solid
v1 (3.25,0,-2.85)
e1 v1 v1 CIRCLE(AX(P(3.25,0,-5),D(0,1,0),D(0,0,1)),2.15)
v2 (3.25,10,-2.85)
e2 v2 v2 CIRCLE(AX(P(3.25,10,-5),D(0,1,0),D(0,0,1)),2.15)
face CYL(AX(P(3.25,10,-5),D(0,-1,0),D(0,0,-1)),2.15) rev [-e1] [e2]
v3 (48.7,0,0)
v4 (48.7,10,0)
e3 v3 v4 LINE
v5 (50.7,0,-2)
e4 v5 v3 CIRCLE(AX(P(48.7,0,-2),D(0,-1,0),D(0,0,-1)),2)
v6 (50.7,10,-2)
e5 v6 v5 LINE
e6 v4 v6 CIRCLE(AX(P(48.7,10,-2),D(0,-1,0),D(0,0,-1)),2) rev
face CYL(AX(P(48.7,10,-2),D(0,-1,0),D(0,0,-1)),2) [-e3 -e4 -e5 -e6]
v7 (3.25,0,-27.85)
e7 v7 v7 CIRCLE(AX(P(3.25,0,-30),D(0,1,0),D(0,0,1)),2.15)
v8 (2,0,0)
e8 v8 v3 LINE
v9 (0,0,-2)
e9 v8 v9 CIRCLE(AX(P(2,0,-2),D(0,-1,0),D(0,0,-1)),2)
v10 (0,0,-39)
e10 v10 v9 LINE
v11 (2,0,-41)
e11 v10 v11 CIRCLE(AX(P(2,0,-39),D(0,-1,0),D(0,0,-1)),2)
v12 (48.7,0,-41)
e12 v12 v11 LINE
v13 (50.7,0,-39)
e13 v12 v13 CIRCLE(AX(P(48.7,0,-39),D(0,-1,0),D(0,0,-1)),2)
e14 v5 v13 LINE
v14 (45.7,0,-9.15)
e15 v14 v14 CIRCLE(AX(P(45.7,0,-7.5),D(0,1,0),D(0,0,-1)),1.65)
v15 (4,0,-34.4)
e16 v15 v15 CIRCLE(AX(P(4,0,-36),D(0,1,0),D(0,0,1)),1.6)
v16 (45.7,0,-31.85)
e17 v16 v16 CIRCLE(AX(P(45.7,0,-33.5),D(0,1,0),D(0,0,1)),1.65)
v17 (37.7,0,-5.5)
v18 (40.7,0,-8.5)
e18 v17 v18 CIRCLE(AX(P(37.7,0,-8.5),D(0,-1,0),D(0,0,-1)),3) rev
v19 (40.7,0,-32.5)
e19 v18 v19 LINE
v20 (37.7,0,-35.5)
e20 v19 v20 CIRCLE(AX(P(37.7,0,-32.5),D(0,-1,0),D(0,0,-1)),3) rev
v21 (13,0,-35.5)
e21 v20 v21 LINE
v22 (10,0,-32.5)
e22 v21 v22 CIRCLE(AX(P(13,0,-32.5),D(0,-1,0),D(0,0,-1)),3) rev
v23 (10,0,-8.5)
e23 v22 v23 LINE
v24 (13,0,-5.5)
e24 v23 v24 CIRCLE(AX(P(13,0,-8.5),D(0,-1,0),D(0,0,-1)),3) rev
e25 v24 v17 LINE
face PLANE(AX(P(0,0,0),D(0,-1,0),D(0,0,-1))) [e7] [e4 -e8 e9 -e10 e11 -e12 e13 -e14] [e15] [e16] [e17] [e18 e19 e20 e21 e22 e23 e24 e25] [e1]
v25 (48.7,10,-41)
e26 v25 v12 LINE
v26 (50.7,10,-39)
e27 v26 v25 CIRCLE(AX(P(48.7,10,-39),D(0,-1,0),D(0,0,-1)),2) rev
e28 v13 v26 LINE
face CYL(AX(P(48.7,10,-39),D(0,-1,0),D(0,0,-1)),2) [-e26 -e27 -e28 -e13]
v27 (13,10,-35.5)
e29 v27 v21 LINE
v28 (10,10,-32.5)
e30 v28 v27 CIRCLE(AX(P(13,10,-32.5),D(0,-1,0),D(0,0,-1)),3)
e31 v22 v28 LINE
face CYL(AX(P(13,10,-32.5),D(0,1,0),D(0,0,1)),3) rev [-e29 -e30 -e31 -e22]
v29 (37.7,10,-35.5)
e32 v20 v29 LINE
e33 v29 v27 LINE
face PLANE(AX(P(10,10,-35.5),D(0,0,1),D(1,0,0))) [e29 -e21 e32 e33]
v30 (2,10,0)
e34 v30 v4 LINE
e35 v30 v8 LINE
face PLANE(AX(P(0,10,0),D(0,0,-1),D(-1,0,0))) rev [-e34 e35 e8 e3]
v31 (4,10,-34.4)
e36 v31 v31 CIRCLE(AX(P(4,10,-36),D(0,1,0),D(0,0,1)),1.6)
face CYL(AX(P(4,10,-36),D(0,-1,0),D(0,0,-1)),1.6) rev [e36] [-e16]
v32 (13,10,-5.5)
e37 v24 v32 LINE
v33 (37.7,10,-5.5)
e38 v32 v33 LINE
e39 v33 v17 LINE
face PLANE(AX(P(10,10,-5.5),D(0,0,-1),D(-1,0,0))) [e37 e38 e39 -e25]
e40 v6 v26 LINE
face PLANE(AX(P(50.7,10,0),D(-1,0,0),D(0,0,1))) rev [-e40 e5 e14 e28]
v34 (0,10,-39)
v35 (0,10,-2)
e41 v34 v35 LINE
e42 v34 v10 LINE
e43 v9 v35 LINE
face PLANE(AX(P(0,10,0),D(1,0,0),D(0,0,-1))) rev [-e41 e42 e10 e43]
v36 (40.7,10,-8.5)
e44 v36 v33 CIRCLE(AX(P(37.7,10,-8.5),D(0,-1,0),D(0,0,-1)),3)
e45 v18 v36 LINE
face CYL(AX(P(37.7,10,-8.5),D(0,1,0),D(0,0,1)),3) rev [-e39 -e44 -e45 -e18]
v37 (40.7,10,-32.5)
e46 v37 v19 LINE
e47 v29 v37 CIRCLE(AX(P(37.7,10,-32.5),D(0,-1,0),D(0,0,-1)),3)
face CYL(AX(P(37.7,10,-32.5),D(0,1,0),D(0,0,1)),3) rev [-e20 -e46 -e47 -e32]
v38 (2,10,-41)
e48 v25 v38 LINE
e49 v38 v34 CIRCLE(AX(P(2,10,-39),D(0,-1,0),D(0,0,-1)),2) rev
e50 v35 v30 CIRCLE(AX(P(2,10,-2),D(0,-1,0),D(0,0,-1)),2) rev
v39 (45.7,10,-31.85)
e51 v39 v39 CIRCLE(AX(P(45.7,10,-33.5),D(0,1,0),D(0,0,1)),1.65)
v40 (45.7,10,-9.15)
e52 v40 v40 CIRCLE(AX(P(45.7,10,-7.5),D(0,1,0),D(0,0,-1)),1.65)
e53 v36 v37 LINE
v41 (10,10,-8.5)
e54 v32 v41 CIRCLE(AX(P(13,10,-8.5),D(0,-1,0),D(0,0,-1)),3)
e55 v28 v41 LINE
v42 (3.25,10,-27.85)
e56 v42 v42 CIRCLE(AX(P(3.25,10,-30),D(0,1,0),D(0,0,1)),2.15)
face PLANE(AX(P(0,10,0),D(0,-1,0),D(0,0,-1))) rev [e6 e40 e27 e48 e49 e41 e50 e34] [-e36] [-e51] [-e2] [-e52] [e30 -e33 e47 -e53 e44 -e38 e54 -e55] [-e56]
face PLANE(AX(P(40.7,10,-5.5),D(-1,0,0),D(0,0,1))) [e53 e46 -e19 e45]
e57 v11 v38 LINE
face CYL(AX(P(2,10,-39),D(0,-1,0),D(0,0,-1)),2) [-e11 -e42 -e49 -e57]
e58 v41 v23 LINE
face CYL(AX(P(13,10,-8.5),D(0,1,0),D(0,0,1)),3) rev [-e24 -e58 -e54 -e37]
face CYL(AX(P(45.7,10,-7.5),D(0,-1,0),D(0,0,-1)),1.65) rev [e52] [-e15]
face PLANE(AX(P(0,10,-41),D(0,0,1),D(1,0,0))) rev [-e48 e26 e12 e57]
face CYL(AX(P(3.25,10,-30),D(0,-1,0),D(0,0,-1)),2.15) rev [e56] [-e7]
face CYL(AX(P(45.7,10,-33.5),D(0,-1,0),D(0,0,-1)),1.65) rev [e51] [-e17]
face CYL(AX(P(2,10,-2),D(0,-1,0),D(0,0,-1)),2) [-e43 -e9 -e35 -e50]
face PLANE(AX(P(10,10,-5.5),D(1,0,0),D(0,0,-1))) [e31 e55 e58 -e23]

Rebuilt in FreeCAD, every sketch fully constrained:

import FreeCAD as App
import Part
import Sketcher

V = App.Vector
Q = App.Units.Quantity


def edges_at(feature, points):
    """Names of the edges that pass closest to the given points."""
    edges = feature.Shape.Edges
    near = lambda p: min(range(len(edges)), key=lambda i: edges[i].distToShape(Part.Vertex(*p))[0])
    return sorted({f"Edge{near(p) + 1}" for p in points})


def add_polygon(sketch, points):
    """Adds a closed chain of lines whose ends are joined by coincident constraints."""
    first, n = sketch.GeometryCount, len(points)
    for a, b in zip(points, points[1:] + points[:1]):
        sketch.addGeometry(Part.LineSegment(App.Vector(*a, 0), App.Vector(*b, 0)), False)
    for i in range(n):
        sketch.addConstraint(Sketcher.Constraint("Coincident", first + i, 2, first + (i + 1) % n, 1))

doc = App.newDocument("Part")
body = doc.addObject("PartDesign::Body", "Body")

sketch1 = doc.addObject("Sketcher::SketchObject", "Sketch")
body.addObject(sketch1)
sketch1.AttachmentSupport = (doc.XZ_Plane, [""])
sketch1.MapMode = "FlatFace"
add_polygon(sketch1, [(0, -41), (0, 0), (50.7, 0), (50.7, -41)])
sketch1.addGeometry(Part.Circle(V(3.2, -5, 0), V(0, 0, 1), 2.1), False)
sketch1.addGeometry(Part.Circle(V(45.7, -7.5, 0), V(0, 0, 1), 1.6), False)
sketch1.addGeometry(Part.Circle(V(3.2, -30, 0), V(0, 0, 1), 2.1), False)
sketch1.addGeometry(Part.Circle(V(4, -36, 0), V(0, 0, 1), 1.6), False)
add_polygon(sketch1, [(40.7, -5.5), (10, -5.5), (10, -35.5), (40.7, -35.5)])
sketch1.addGeometry(Part.Circle(V(45.7, -33.5, 0), V(0, 0, 1), 1.6), False)
sketch1.addConstraint([
    Sketcher.Constraint("Vertical", 0),
    Sketcher.Constraint("Horizontal", 1),
    Sketcher.Constraint("Vertical", 2),
    Sketcher.Constraint("Horizontal", 3),
    Sketcher.Constraint("Horizontal", 8),
    Sketcher.Constraint("Vertical", 9),
    Sketcher.Constraint("Horizontal", 10),
    Sketcher.Constraint("Vertical", 11),
    Sketcher.Constraint("Coincident", 0, 2, -1, 1),
    Sketcher.Constraint("Equal", 4, 6),
    Sketcher.Constraint("Equal", 5, 12),
    Sketcher.Constraint("Vertical", 4, 3, 6, 3),
    Sketcher.Constraint("Vertical", 5, 3, 12, 3),
    Sketcher.Constraint("Diameter", 4, Q("4.3 mm")),
    Sketcher.Constraint("Diameter", 5, Q("3.3 mm")),
    Sketcher.Constraint("Diameter", 7, Q("3.2 mm")),
    Sketcher.Constraint("DistanceY", 0, 1, 0, 2, Q("41 mm")),
    Sketcher.Constraint("DistanceY", 9, 2, 9, 1, Q("30 mm")),
    Sketcher.Constraint("DistanceX", 1, 1, 1, 2, Q("50.7 mm")),
    Sketcher.Constraint("DistanceX", 8, 2, 8, 1, Q("30.7 mm")),
    Sketcher.Constraint("DistanceY", 4, 3, -1, 1, Q("5 mm")),
    Sketcher.Constraint("DistanceY", 6, 3, -1, 1, Q("30 mm")),
    Sketcher.Constraint("DistanceX", -1, 1, 7, 3, Q("4 mm")),
    Sketcher.Constraint("DistanceY", 7, 3, -1, 1, Q("36 mm")),
    Sketcher.Constraint("DistanceX", -1, 1, 8, 2, Q("10 mm")),
    Sketcher.Constraint("DistanceY", 12, 3, 5, 3, Q("26 mm")),
    Sketcher.Constraint("DistanceX", 5, 3, 1, 2, Q("5 mm")),
    Sketcher.Constraint("DistanceY", 5, 3, 8, 2, Q("2 mm")),
    Sketcher.Constraint("DistanceY", 5, 3, -1, 1, Q("7.5 mm")),
    Sketcher.Constraint("DistanceX", -1, 1, 4, 3, Q("3.25 mm")),
])
pad1 = doc.addObject("PartDesign::Pad", "Pad")
body.addObject(pad1)
pad1.Profile = sketch1
pad1.Length = 10
pad1.Reversed = True
doc.recompute()

fillet = doc.addObject("PartDesign::Fillet", "Fillet")
body.addObject(fillet)
fillet.Base = (pad1, edges_at(pad1, [
    (0, 5, -41),
    (50.7, 5, -41),
    (50.7, 5, 0),
    (0, 5, 0),
]))
fillet.Radius = 2
doc.recompute()

fillet2 = doc.addObject("PartDesign::Fillet", "Fillet001")
body.addObject(fillet2)
fillet2.Base = (fillet, edges_at(fillet, [
    (40.7, 5, -5.5),
    (40.7, 5, -35.5),
    (10, 5, -35.5),
    (10, 5, -5.5),
]))
fillet2.Radius = 3

doc.recompute()
